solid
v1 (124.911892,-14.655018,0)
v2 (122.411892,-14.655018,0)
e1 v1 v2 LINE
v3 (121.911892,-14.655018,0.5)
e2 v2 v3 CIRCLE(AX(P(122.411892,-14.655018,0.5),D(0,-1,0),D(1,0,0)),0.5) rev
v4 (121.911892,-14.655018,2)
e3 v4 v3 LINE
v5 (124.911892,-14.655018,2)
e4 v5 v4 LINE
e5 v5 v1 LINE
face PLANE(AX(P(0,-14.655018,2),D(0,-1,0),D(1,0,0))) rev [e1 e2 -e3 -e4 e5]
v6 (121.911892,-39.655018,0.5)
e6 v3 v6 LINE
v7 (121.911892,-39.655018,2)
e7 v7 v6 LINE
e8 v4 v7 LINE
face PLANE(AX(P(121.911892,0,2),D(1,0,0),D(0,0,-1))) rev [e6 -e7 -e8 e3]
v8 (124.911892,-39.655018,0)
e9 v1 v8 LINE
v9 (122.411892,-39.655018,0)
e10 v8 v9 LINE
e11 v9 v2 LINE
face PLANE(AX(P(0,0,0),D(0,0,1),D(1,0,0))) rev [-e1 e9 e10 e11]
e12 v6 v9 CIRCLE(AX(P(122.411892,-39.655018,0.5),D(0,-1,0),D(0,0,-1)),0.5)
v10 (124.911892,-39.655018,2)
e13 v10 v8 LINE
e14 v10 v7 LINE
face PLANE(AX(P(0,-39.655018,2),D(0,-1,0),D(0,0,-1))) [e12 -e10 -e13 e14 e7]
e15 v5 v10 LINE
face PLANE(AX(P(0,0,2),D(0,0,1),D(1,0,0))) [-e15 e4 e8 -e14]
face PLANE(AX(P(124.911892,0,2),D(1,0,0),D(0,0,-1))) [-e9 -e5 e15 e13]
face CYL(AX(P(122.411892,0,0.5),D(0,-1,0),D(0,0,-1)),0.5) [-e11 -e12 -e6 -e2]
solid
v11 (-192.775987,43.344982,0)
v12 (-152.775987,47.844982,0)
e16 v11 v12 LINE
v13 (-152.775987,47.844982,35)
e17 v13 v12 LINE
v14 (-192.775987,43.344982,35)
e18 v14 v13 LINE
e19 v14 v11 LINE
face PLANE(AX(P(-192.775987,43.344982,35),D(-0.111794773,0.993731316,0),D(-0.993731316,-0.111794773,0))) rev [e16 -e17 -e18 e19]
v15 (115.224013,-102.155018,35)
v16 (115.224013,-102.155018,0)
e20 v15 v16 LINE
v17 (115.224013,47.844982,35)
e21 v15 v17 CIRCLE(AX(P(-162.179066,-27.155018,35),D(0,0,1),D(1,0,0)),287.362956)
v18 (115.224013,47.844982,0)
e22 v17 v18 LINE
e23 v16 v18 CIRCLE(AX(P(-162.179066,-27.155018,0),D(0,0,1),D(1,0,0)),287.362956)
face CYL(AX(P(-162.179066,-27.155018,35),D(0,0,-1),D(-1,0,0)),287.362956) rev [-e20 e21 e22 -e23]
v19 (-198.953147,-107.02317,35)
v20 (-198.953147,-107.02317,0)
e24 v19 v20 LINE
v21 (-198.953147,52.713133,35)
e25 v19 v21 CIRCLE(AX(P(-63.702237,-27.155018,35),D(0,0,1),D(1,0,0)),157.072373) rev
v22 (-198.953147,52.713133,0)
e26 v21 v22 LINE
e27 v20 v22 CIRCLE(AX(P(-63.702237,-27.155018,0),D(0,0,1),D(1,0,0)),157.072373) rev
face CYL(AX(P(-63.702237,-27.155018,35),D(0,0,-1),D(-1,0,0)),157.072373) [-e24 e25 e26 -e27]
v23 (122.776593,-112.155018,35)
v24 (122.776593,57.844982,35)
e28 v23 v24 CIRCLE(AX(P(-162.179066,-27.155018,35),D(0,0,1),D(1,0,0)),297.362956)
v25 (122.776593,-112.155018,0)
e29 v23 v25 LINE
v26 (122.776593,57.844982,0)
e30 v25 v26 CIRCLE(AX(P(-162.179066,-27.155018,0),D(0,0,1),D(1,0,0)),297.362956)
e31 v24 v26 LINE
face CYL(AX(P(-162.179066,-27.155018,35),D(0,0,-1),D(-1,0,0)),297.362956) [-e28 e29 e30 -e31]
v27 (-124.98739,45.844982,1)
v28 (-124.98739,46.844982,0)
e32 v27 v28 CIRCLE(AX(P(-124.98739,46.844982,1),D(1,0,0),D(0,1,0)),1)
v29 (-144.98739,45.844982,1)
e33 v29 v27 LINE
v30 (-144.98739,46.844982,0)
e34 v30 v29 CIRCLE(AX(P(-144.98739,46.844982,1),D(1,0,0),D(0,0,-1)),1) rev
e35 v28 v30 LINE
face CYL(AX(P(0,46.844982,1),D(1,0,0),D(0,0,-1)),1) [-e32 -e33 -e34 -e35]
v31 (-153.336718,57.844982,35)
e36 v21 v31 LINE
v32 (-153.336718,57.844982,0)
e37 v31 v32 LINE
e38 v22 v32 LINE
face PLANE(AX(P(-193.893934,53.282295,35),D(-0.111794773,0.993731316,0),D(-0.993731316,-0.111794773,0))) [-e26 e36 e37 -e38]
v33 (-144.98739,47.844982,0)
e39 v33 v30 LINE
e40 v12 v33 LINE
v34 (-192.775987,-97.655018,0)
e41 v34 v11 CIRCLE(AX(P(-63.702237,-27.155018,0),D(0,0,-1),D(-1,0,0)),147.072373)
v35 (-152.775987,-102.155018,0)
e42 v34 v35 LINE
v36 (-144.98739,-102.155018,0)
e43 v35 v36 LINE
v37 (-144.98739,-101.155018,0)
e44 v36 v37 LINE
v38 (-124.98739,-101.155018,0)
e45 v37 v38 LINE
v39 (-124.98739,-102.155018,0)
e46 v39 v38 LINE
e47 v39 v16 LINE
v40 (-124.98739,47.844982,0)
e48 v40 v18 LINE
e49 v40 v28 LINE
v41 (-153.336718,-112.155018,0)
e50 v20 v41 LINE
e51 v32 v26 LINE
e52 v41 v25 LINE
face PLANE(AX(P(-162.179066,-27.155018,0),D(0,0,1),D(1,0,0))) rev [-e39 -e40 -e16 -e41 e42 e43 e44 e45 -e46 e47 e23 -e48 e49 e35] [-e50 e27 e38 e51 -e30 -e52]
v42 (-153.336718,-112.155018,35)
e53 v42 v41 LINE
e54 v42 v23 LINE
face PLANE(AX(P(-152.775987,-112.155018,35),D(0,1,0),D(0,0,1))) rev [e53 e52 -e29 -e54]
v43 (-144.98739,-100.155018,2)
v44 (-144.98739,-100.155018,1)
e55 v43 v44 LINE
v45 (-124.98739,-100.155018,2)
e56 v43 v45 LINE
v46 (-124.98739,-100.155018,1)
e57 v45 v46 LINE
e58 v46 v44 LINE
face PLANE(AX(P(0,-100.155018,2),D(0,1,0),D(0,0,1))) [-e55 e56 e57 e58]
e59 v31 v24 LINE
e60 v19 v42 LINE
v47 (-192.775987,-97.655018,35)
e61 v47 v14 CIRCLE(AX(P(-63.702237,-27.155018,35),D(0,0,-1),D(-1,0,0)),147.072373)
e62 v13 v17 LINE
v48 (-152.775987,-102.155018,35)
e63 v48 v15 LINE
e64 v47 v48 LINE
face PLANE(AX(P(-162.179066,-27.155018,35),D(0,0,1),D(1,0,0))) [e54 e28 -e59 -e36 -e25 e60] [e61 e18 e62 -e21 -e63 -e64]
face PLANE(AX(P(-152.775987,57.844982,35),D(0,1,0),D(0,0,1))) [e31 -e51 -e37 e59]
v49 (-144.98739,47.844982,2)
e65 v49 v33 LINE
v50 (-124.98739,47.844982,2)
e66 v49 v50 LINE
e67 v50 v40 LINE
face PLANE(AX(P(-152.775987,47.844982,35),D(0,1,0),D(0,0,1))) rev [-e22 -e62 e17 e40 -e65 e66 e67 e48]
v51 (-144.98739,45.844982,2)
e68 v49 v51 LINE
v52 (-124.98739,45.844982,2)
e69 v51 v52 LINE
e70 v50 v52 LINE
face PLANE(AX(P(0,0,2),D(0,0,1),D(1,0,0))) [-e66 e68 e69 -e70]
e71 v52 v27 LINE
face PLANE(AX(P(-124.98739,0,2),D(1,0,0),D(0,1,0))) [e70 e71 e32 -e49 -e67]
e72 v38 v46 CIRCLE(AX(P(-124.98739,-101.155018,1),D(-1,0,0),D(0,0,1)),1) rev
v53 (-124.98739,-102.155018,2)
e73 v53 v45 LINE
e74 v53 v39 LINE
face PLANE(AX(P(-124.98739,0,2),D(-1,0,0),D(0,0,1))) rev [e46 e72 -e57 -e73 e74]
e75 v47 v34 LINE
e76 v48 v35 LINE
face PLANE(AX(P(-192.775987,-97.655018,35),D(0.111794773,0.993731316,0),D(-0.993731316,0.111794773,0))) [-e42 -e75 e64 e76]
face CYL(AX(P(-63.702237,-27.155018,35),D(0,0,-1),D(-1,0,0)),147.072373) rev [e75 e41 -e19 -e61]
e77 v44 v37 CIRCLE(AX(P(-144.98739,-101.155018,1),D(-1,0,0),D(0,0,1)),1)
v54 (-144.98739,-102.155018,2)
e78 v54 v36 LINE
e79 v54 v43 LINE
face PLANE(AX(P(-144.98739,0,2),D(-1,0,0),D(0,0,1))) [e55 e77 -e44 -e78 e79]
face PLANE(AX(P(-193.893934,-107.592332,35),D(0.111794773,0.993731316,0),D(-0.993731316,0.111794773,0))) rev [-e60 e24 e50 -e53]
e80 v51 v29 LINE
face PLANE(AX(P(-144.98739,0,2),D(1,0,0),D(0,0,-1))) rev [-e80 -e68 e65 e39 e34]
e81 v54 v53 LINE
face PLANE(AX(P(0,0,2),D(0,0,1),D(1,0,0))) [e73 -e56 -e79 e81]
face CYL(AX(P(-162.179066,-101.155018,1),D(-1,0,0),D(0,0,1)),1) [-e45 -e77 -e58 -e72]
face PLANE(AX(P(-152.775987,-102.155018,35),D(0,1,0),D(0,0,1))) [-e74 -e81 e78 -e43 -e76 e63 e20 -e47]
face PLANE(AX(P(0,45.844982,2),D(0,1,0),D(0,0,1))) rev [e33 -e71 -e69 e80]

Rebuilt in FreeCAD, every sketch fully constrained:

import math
import FreeCAD as App
import Part
import Sketcher

V = App.Vector


def edges_at(feature, points):
    """Names of the edges that pass closest to the given points."""
    edges = feature.Shape.Edges
    near = lambda p: min(range(len(edges)), key=lambda i: edges[i].distToShape(Part.Vertex(*p))[0])
    return sorted({f"Edge{near(p) + 1}" for p in points})


def add_polygon(sketch, points):
    """Adds a closed chain of lines whose ends are joined by coincident constraints."""
    first, n = sketch.GeometryCount, len(points)
    for a, b in zip(points, points[1:] + points[:1]):
        sketch.addGeometry(Part.LineSegment(App.Vector(*a, 0), App.Vector(*b, 0)), False)
    for i in range(n):
        sketch.addConstraint(Sketcher.Constraint("Coincident", first + i, 2, first + (i + 1) % n, 1))

doc = App.newDocument("Part")
params = doc.addObject("Spreadsheet::Sheet", "Params")
for row, (alias, value) in enumerate([
    ("sketch1_width", "268 mm"),
    ("pad1_length", "35 mm"),
    ("sketch2_width", "20 mm"),
    ("sketch2_height", "2 mm"),
    ("pad2_length", "2 mm"),
    ("sketch3_width", "20 mm"),
    ("sketch3_height", "2 mm"),
    ("pad3_length", "2 mm"),
    ("fillet_radius", "1 mm"),
    ("fillet2_radius", "1 mm"),
    ("sketch4_width", "3 mm"),
    ("sketch4_height", "25 mm"),
    ("pad4_length", "2 mm"),
    ("fillet3_radius", "0.5 mm"),
], start=1):
    params.set(f"A{row}", alias)
    params.set(f"B{row}", "=" + value)
    params.setAlias(f"B{row}", alias)

body = doc.addObject("PartDesign::Body", "Body")

# Sketch on XY plane
sketch1 = body.newObject("Sketcher::SketchObject", "Sketch")
sketch1.AttachmentSupport = (doc.getObject("XY_Plane"), [""])
sketch1.MapMode = "FlatFace"
sketch1.addGeometry([
    Part.LineSegment(V(-153.336718, 57.844982, 0), V(-198.953147, 52.713133, 0)),  # 0
    Part.ArcOfCircle(Part.Circle(V(-63.702237, -27.155018, 0), V(0, 0, 1), 157.072373), math.radians(149.437367), math.radians(210.562633)),  # 1
    Part.LineSegment(V(-198.953147, -107.02317, 0), V(-153.336718, -112.155018, 0)),  # 2
    Part.LineSegment(V(-153.336718, -112.155018, 0), V(122.776593, -112.155018, 0)),  # 3
    Part.ArcOfCircle(Part.Circle(V(-162.179066, -27.155018, 0), V(0, 0, 1), 297.362956), math.radians(-16.609422), math.radians(16.609422)),  # 4
    Part.LineSegment(V(122.776593, 57.844982, 0), V(-153.336718, 57.844982, 0)),  # 5
    Part.LineSegment(V(-192.775987, 43.344982, 0), V(-152.775987, 47.844982, 0)),  # 6
    Part.LineSegment(V(-152.775987, 47.844982, 0), V(115.224013, 47.844982, 0)),  # 7
    Part.ArcOfCircle(Part.Circle(V(-162.179066, -27.155018, 0), V(0, 0, 1), 287.362956), math.radians(-15.129049), math.radians(15.129049)),  # 8
    Part.LineSegment(V(115.224013, -102.155018, 0), V(-152.775987, -102.155018, 0)),  # 9
    Part.LineSegment(V(-152.775987, -102.155018, 0), V(-192.775987, -97.655018, 0)),  # 10
    Part.ArcOfCircle(Part.Circle(V(-63.702237, -27.155018, 0), V(0, 0, 1), 147.072373), math.radians(151.356661), math.radians(208.643339)),  # 11
], False)
sketch1.addConstraint([
    Sketcher.Constraint("Coincident", 0, 2, 1, 1),
    Sketcher.Constraint("Coincident", 1, 2, 2, 1),
    Sketcher.Constraint("Coincident", 2, 2, 3, 1),
    Sketcher.Constraint("Coincident", 3, 2, 4, 1),
    Sketcher.Constraint("Coincident", 4, 2, 5, 1),
    Sketcher.Constraint("Coincident", 5, 2, 0, 1),
    Sketcher.Constraint("Coincident", 6, 2, 7, 1),
    Sketcher.Constraint("Coincident", 7, 2, 8, 2),
    Sketcher.Constraint("Coincident", 8, 1, 9, 1),
    Sketcher.Constraint("Coincident", 9, 2, 10, 1),
    Sketcher.Constraint("Coincident", 10, 2, 11, 2),
    Sketcher.Constraint("Coincident", 11, 1, 6, 1),
    Sketcher.Constraint("Horizontal", 3),
    Sketcher.Constraint("Horizontal", 5),
    Sketcher.Constraint("Horizontal", 7),
    Sketcher.Constraint("Horizontal", 9),
    Sketcher.Constraint("Coincident", 8, 3, 4, 3),
    Sketcher.Constraint("Coincident", 11, 3, 1, 3),
    Sketcher.Constraint("Parallel", 0, 6),
    Sketcher.Constraint("Parallel", 2, 10),
    Sketcher.Constraint("Horizontal", 1, 3, 4, 3),
    Sketcher.Constraint("Vertical", 0, 2, 1, 2),
    Sketcher.Constraint("Vertical", 3, 2, 4, 2),
    Sketcher.Constraint("Vertical", 2, 2, 5, 2),
    Sketcher.Constraint("Vertical", 7, 2, 8, 1),
    Sketcher.Constraint("Vertical", 6, 2, 9, 2),
    Sketcher.Constraint("DistanceX", 7, 1, 7, 2, 268.0),
    Sketcher.Constraint("DistanceY", 2, 2, 8, 3, 85.0),
    Sketcher.Constraint("DistanceY", 6, 2, 5, 2, 10.0),
    Sketcher.Constraint("DistanceX", 10, 2, 9, 2, 40.0),
    Sketcher.Constraint("DistanceY", 9, 2, 10, 2, 4.5),
    Sketcher.Constraint("Radius", 1, 157.072373),
    Sketcher.Constraint("Radius", 4, 297.362956),
    Sketcher.Constraint("Radius", 8, 287.362956),
    Sketcher.Constraint("Radius", 11, 147.072373),
    Sketcher.Constraint("DistanceX", 3, 1, 3, 2, 276.113311),
    Sketcher.Constraint("DistanceY", 1, 3, -1, 1, 27.155018),
    Sketcher.Constraint("DistanceX", 2, 2, -1, 1, 153.336718),
])
sketch1.setExpression("Constraints[26]", "Params.sketch1_width")
pad1 = body.newObject("PartDesign::Pad", "Pad")
pad1.Profile = sketch1
pad1.setExpression("Length", "Params.pad1_length")

# Sketch on XY plane
sketch2 = body.newObject("Sketcher::SketchObject", "Sketch001")
sketch2.AttachmentSupport = (doc.getObject("XY_Plane"), [""])
sketch2.MapMode = "FlatFace"
add_polygon(sketch2, [(-144.98739, -100.155018), (-144.98739, -102.155018), (-124.98739, -102.155018), (-124.98739, -100.155018)])  # lines 0-3
sketch2.addConstraint([
    Sketcher.Constraint("Vertical", 0),
    Sketcher.Constraint("Horizontal", 1),
    Sketcher.Constraint("Vertical", 2),
    Sketcher.Constraint("Horizontal", 3),
    Sketcher.Constraint("DistanceX", 1, 1, 1, 2, 20.0),
    Sketcher.Constraint("DistanceY", 0, 2, 0, 1, 2.0),
    Sketcher.Constraint("DistanceX", 0, 2, -1, 1, 144.98739),
    Sketcher.Constraint("DistanceY", 0, 2, -1, 1, 102.155018),
])
sketch2.setExpression("Constraints[8]", "Params.sketch2_width")
sketch2.setExpression("Constraints[9]", "Params.sketch2_height")
pad2 = body.newObject("PartDesign::Pad", "Pad001")
pad2.Profile = sketch2
pad2.setExpression("Length", "Params.pad2_length")

# Sketch on XY plane
sketch3 = body.newObject("Sketcher::SketchObject", "Sketch002")
sketch3.AttachmentSupport = (doc.getObject("XY_Plane"), [""])
sketch3.MapMode = "FlatFace"
add_polygon(sketch3, [(-144.98739, 47.844982), (-144.98739, 45.844982), (-124.98739, 45.844982), (-124.98739, 47.844982)])  # lines 0-3
sketch3.addConstraint([
    Sketcher.Constraint("Vertical", 0),
    Sketcher.Constraint("Horizontal", 1),
    Sketcher.Constraint("Vertical", 2),
    Sketcher.Constraint("Horizontal", 3),
    Sketcher.Constraint("DistanceX", 1, 1, 1, 2, 20.0),
    Sketcher.Constraint("DistanceY", 0, 2, 0, 1, 2.0),
    Sketcher.Constraint("DistanceX", 0, 2, -1, 1, 144.98739),
    Sketcher.Constraint("DistanceY", -1, 1, 0, 2, 45.844982),
])
sketch3.setExpression("Constraints[8]", "Params.sketch3_width")
sketch3.setExpression("Constraints[9]", "Params.sketch3_height")
pad3 = body.newObject("PartDesign::Pad", "Pad002")
pad3.Profile = sketch3
pad3.setExpression("Length", "Params.pad3_length")
doc.recompute()

fillet = body.newObject("PartDesign::Fillet", "Fillet")
fillet.Base = (pad3, edges_at(pad3, [(-134.987, 45.845, 0)]))
fillet.setExpression("Radius", "Params.fillet_radius")
doc.recompute()

fillet2 = body.newObject("PartDesign::Fillet", "Fillet001")
fillet2.Base = (fillet, edges_at(fillet, [(-134.987, -100.155, 0)]))
fillet2.setExpression("Radius", "Params.fillet2_radius")
body2 = doc.addObject("PartDesign::Body", "Body001")

# Sketch on XY plane
sketch4 = body2.newObject("Sketcher::SketchObject", "Sketch003")
sketch4.AttachmentSupport = (doc.getObject("XY_Plane001"), [""])
sketch4.MapMode = "FlatFace"
add_polygon(sketch4, [(121.911892, -14.655018), (121.911892, -39.655018), (124.911892, -39.655018), (124.911892, -14.655018)])  # lines 0-3
sketch4.addConstraint([
    Sketcher.Constraint("Vertical", 0),
    Sketcher.Constraint("Horizontal", 1),
    Sketcher.Constraint("Vertical", 2),
    Sketcher.Constraint("Horizontal", 3),
    Sketcher.Constraint("DistanceX", 1, 1, 1, 2, 3.0),
    Sketcher.Constraint("DistanceY", 0, 2, 0, 1, 25.0),
    Sketcher.Constraint("DistanceY", 0, 2, -1, 1, 39.655018),
    Sketcher.Constraint("DistanceX", -1, 1, 0, 2, 121.911892),
])
sketch4.setExpression("Constraints[8]", "Params.sketch4_width")
sketch4.setExpression("Constraints[9]", "Params.sketch4_height")
pad4 = body2.newObject("PartDesign::Pad", "Pad003")
pad4.Profile = sketch4
pad4.setExpression("Length", "Params.pad4_length")
doc.recompute()

fillet3 = body2.newObject("PartDesign::Fillet", "Fillet002")
fillet3.Base = (pad4, edges_at(pad4, [(121.912, -27.155, 0)]))
fillet3.setExpression("Radius", "Params.fillet3_radius")

doc.recompute()
